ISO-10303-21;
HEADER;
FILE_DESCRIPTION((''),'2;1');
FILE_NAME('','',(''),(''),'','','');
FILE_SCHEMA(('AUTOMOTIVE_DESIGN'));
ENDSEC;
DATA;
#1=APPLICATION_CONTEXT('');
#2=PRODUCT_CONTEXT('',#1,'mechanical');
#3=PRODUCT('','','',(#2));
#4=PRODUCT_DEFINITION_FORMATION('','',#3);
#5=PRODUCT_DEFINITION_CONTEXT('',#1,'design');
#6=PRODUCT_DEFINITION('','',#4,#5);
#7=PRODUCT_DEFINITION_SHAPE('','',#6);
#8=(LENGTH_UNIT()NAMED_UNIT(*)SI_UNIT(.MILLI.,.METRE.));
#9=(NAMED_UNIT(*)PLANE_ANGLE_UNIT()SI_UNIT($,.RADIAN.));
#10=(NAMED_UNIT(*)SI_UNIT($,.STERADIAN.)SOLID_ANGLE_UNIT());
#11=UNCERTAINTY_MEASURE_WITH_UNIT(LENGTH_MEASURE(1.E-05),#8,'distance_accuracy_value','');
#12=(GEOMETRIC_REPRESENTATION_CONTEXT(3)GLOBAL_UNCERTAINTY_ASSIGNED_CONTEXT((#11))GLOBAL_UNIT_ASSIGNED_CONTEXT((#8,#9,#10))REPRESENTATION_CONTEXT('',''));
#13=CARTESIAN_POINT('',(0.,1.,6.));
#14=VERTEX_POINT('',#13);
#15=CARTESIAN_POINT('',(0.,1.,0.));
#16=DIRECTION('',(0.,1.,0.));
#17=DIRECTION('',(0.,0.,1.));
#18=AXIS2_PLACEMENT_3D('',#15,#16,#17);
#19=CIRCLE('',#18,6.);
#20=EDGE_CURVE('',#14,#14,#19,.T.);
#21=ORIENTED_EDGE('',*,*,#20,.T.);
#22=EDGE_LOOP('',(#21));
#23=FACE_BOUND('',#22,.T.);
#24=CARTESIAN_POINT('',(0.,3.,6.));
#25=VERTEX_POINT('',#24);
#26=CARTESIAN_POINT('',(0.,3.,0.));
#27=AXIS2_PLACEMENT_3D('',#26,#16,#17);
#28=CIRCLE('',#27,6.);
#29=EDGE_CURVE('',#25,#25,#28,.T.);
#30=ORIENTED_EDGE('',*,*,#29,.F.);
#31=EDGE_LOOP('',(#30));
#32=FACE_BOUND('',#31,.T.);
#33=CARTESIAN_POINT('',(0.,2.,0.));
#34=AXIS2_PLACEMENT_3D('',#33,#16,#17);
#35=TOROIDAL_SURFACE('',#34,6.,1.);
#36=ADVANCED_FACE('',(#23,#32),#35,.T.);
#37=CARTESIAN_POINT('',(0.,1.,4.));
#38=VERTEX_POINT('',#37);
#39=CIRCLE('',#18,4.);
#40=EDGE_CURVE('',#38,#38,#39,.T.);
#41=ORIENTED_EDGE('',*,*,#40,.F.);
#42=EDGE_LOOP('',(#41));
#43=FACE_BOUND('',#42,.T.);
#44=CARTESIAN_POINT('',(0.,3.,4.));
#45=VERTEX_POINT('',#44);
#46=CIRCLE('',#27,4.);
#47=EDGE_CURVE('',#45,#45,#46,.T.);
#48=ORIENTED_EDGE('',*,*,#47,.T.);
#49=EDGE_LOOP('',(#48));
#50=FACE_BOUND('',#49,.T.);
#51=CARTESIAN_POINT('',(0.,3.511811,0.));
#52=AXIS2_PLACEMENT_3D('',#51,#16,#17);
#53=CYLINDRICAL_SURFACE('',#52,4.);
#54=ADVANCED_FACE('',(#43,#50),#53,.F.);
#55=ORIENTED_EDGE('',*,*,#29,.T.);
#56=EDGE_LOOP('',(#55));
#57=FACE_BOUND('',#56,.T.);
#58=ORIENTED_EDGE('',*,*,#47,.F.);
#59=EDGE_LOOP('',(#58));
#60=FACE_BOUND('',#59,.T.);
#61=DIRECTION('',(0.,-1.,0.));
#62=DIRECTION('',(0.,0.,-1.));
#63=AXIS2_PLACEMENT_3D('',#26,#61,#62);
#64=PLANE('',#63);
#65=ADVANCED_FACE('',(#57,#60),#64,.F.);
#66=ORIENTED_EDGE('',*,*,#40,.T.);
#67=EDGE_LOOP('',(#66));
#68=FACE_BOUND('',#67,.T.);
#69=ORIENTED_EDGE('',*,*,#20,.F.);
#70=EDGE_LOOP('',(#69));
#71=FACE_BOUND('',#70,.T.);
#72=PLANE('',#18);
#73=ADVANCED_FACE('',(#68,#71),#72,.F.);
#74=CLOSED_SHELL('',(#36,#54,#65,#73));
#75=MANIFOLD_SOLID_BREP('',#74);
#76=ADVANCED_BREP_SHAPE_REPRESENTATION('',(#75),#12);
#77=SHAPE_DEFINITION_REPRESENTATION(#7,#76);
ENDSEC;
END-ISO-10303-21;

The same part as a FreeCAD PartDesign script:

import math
import FreeCAD as App
import Part
import Sketcher
from FreeCAD import Vector
Q = App.Units.Quantity

doc = App.newDocument("Part")
body = doc.addObject("PartDesign::Body", "Body")

sketch1 = body.newObject("Sketcher::SketchObject", "Sketch")
sketch1.AttachmentSupport = (doc.getObject("XY_Plane"), [""])
sketch1.MapMode = "FlatFace"
sketch1.addGeometry([
    Part.LineSegment(Vector(-6, 1, 0), Vector(-4, 1, 0)),
    Part.LineSegment(Vector(-4, 1, 0), Vector(-4, 3, 0)),
    Part.LineSegment(Vector(-4, 3, 0), Vector(-6, 3, 0)),
    Part.ArcOfCircle(Part.Circle(Vector(-6, 2, 0), Vector(0, 0, 1), 1), math.radians(90), math.radians(270)),
], False)
sketch1.addConstraint([
    Sketcher.Constraint("Coincident", 0, 2, 1, 1),
    Sketcher.Constraint("Coincident", 1, 2, 2, 1),
    Sketcher.Constraint("Tangent", 2, 2, 3, 1),
    Sketcher.Constraint("Tangent", 3, 2, 0, 1),
    Sketcher.Constraint("Horizontal", 0),
    Sketcher.Constraint("Vertical", 1),
    Sketcher.Constraint("Horizontal", 2),
    Sketcher.Constraint("Equal", 2, 1),
    Sketcher.Constraint("Radius", 3, Q("1 mm")),
    Sketcher.Constraint("DistanceX", 3, 3, -1, 1, Q("6 mm")),
    Sketcher.Constraint("DistanceY", -1, 1, 3, 3, Q("2 mm")),
])
revolution = body.newObject("PartDesign::Revolution", "Revolution")
revolution.Profile = sketch1
revolution.ReferenceAxis = (sketch1, ["V_Axis"])
revolution.Angle = 360

doc.recompute()
